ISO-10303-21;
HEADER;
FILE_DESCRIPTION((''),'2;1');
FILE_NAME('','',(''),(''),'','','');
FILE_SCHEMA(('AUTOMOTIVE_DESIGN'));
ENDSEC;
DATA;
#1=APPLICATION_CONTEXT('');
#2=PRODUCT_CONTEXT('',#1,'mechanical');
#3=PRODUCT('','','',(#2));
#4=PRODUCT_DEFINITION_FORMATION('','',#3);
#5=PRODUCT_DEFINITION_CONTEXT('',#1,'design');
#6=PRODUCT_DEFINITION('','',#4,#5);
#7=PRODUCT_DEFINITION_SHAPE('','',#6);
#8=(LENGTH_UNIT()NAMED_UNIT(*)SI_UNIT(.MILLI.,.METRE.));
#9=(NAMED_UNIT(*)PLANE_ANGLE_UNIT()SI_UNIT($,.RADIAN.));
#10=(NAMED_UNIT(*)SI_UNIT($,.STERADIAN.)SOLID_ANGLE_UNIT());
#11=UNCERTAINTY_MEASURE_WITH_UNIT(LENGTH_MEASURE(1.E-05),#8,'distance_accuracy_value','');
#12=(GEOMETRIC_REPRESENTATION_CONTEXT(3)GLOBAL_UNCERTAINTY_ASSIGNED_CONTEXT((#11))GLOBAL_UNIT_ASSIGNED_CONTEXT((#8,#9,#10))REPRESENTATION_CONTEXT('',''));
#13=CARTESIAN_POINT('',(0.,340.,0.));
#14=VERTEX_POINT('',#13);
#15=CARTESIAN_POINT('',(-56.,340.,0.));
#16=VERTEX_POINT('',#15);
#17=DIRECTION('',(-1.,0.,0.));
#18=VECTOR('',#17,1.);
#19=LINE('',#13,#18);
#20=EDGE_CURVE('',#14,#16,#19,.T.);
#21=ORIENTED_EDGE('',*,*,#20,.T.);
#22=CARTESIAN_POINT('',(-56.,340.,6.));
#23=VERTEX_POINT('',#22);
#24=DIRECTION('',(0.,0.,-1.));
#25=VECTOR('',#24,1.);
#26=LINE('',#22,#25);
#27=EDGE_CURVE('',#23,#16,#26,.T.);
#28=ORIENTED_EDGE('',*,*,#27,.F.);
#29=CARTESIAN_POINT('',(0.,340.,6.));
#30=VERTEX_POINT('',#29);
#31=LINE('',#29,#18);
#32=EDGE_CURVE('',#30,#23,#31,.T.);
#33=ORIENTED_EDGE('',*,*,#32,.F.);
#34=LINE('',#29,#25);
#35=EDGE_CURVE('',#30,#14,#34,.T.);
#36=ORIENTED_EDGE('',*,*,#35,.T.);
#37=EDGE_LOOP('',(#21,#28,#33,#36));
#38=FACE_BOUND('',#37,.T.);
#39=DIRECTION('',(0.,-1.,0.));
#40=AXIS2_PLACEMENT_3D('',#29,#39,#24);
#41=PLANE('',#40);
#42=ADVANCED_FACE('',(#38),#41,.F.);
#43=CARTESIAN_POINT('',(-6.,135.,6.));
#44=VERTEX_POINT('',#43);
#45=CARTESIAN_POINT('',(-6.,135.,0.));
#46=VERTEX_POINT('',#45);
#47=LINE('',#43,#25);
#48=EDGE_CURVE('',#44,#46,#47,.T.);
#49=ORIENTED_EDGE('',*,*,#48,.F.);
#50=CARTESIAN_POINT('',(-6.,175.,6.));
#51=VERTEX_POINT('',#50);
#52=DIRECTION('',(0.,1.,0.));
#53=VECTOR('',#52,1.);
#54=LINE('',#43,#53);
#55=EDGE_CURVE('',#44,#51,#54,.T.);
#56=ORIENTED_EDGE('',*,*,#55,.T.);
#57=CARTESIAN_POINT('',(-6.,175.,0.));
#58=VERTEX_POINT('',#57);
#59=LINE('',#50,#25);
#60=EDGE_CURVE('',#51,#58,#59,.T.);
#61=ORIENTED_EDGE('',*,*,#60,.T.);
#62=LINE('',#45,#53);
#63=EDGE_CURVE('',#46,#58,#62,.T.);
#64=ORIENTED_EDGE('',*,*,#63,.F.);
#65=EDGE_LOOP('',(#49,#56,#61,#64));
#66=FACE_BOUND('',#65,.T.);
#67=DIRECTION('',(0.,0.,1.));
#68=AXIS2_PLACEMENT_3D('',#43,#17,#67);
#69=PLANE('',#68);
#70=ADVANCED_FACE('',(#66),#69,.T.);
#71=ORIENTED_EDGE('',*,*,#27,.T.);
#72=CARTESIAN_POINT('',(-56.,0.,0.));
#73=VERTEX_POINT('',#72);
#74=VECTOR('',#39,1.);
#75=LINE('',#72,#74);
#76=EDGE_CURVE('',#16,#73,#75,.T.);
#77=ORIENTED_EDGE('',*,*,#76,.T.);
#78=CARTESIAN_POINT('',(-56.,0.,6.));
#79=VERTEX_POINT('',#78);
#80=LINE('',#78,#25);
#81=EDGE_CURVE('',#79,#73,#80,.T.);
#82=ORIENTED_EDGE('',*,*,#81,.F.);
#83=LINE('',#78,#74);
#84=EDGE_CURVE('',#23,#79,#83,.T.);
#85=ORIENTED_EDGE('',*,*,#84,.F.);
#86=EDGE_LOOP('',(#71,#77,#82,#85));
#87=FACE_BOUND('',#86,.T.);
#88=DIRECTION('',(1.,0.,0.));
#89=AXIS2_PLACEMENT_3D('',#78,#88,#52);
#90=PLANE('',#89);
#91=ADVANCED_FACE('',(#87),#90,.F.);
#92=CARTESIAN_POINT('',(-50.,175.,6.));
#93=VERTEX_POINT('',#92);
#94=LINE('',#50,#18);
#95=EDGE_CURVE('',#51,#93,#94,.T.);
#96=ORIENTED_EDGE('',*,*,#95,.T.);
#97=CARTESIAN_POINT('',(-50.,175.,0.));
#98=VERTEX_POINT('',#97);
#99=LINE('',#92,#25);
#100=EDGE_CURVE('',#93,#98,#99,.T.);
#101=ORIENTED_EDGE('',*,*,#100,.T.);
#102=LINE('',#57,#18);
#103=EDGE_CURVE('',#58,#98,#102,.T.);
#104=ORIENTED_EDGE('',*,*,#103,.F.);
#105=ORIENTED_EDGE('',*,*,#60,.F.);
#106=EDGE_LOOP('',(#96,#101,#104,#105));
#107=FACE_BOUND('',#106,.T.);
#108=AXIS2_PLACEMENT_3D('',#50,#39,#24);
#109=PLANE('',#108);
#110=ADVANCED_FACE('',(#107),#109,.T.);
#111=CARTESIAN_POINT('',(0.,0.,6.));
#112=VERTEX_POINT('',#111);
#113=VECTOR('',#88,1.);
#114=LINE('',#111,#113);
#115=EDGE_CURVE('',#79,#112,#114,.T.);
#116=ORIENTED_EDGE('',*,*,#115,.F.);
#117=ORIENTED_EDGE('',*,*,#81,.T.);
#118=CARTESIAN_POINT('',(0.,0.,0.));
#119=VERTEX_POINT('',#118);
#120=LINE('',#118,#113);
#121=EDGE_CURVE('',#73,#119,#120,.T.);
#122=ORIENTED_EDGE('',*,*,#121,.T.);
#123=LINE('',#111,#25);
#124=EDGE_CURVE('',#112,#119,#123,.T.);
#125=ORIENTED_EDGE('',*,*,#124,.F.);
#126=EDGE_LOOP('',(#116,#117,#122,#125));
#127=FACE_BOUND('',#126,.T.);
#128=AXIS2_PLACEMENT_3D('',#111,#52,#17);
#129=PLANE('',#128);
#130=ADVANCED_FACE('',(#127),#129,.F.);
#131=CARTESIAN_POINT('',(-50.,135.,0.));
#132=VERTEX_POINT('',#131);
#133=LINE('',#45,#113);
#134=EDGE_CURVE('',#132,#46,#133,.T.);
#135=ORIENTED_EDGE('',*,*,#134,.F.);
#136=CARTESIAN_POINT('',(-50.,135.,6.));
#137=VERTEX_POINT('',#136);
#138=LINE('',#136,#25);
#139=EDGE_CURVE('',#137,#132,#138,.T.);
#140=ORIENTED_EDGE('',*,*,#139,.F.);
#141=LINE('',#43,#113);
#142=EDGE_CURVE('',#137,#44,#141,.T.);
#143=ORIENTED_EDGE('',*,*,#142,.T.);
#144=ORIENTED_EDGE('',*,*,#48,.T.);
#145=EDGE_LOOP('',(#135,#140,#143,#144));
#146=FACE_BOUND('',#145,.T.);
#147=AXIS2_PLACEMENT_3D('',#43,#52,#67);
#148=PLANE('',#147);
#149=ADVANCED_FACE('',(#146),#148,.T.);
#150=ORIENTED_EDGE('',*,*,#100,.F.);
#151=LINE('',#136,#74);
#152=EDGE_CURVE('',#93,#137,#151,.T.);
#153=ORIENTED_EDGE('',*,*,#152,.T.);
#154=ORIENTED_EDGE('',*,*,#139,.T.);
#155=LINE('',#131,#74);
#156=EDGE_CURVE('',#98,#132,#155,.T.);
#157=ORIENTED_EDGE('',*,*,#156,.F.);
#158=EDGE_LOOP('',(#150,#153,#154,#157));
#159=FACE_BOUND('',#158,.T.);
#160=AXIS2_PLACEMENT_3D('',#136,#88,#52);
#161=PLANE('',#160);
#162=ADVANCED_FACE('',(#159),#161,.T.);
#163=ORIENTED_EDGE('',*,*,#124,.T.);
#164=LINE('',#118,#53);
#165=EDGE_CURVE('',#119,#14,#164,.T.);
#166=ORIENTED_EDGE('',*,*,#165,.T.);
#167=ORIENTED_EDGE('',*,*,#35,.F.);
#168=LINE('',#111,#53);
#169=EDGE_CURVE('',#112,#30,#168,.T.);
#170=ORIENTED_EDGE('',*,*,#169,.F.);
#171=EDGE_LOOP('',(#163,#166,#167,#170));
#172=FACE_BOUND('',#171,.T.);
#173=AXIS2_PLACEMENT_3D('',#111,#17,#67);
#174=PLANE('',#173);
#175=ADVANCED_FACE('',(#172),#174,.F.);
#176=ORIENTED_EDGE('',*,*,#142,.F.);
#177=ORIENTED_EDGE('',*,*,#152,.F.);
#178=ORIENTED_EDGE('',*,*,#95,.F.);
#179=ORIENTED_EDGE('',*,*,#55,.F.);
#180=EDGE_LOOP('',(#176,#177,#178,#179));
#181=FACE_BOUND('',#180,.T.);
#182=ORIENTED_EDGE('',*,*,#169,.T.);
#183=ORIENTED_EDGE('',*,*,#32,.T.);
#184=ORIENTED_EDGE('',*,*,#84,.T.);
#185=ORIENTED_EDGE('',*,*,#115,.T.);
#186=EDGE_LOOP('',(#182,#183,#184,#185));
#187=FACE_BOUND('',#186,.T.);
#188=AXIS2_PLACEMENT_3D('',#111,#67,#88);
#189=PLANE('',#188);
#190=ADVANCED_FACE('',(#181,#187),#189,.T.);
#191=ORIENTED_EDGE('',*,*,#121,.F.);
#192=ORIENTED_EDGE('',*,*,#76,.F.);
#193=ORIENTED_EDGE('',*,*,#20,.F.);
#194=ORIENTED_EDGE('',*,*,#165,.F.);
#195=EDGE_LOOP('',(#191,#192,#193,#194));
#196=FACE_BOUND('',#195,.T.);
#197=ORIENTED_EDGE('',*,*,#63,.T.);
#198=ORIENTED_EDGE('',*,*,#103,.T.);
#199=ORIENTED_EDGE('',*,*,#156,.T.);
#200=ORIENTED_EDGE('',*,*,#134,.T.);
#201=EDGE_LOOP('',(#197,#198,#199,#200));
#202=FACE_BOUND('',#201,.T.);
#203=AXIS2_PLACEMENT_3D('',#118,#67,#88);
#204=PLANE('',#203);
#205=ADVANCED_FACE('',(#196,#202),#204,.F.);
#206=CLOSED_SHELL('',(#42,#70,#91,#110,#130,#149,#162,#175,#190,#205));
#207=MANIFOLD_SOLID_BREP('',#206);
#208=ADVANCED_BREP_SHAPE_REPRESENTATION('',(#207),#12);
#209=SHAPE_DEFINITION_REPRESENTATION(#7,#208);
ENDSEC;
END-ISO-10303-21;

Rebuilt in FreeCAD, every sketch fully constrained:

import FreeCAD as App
import Part
import Sketcher
from FreeCAD import Vector


def add_polygon(sketch, points):
    """Adds a closed chain of lines whose ends are joined by coincident constraints."""
    first, n = sketch.GeometryCount, len(points)
    for a, b in zip(points, points[1:] + points[:1]):
        sketch.addGeometry(Part.LineSegment(App.Vector(*a, 0), App.Vector(*b, 0)), False)
    for i in range(n):
        sketch.addConstraint(Sketcher.Constraint("Coincident", first + i, 2, first + (i + 1) % n, 1))

doc = App.newDocument("Part")
params = doc.addObject("Spreadsheet::Sheet", "Params")
for row, (alias, value) in enumerate([
    ("sketch1_width", "56 mm"),
    ("sketch1_width2", "44 mm"),
    ("sketch1_height", "340 mm"),
    ("sketch1_height2", "40 mm"),
    ("pad1_length", "6 mm"),
], start=1):
    params.set(f"A{row}", alias)
    params.set(f"B{row}", "=" + value)
    params.setAlias(f"B{row}", alias)

body = doc.addObject("PartDesign::Body", "Body")

sketch1 = body.newObject("Sketcher::SketchObject", "Sketch")
sketch1.AttachmentSupport = (doc.getObject("XY_Plane"), [""])
sketch1.MapMode = "FlatFace"
add_polygon(sketch1, [(-56, 340), (-56, 0), (0, 0), (0, 340)])
add_polygon(sketch1, [(-6, 135), (-50, 135), (-50, 175), (-6, 175)])
sketch1.addConstraint([
    Sketcher.Constraint("Vertical", 0),
    Sketcher.Constraint("Horizontal", 1),
    Sketcher.Constraint("Vertical", 2),
    Sketcher.Constraint("Horizontal", 3),
    Sketcher.Constraint("Horizontal", 4),
    Sketcher.Constraint("Vertical", 5),
    Sketcher.Constraint("Horizontal", 6),
    Sketcher.Constraint("Vertical", 7),
    Sketcher.Constraint("Coincident", 1, 2, -1, 1),
    Sketcher.Constraint("DistanceX", 1, 1, 1, 2, 56.0),
    Sketcher.Constraint("DistanceX", 4, 2, 4, 1, 44.0),
    Sketcher.Constraint("DistanceY", 0, 2, 0, 1, 340.0),
    Sketcher.Constraint("DistanceY", 5, 1, 5, 2, 40.0),
    Sketcher.Constraint("DistanceX", 4, 2, -1, 1, 50.0),
    Sketcher.Constraint("DistanceY", -1, 1, 4, 2, 135.0),
])
sketch1.setExpression("Constraints[17]", "Params.sketch1_width")
sketch1.setExpression("Constraints[18]", "Params.sketch1_width2")
sketch1.setExpression("Constraints[19]", "Params.sketch1_height")
sketch1.setExpression("Constraints[20]", "Params.sketch1_height2")
pad1 = body.newObject("PartDesign::Pad", "Pad")
pad1.Profile = sketch1
pad1.setExpression("Length", "Params.pad1_length")

doc.recompute()
